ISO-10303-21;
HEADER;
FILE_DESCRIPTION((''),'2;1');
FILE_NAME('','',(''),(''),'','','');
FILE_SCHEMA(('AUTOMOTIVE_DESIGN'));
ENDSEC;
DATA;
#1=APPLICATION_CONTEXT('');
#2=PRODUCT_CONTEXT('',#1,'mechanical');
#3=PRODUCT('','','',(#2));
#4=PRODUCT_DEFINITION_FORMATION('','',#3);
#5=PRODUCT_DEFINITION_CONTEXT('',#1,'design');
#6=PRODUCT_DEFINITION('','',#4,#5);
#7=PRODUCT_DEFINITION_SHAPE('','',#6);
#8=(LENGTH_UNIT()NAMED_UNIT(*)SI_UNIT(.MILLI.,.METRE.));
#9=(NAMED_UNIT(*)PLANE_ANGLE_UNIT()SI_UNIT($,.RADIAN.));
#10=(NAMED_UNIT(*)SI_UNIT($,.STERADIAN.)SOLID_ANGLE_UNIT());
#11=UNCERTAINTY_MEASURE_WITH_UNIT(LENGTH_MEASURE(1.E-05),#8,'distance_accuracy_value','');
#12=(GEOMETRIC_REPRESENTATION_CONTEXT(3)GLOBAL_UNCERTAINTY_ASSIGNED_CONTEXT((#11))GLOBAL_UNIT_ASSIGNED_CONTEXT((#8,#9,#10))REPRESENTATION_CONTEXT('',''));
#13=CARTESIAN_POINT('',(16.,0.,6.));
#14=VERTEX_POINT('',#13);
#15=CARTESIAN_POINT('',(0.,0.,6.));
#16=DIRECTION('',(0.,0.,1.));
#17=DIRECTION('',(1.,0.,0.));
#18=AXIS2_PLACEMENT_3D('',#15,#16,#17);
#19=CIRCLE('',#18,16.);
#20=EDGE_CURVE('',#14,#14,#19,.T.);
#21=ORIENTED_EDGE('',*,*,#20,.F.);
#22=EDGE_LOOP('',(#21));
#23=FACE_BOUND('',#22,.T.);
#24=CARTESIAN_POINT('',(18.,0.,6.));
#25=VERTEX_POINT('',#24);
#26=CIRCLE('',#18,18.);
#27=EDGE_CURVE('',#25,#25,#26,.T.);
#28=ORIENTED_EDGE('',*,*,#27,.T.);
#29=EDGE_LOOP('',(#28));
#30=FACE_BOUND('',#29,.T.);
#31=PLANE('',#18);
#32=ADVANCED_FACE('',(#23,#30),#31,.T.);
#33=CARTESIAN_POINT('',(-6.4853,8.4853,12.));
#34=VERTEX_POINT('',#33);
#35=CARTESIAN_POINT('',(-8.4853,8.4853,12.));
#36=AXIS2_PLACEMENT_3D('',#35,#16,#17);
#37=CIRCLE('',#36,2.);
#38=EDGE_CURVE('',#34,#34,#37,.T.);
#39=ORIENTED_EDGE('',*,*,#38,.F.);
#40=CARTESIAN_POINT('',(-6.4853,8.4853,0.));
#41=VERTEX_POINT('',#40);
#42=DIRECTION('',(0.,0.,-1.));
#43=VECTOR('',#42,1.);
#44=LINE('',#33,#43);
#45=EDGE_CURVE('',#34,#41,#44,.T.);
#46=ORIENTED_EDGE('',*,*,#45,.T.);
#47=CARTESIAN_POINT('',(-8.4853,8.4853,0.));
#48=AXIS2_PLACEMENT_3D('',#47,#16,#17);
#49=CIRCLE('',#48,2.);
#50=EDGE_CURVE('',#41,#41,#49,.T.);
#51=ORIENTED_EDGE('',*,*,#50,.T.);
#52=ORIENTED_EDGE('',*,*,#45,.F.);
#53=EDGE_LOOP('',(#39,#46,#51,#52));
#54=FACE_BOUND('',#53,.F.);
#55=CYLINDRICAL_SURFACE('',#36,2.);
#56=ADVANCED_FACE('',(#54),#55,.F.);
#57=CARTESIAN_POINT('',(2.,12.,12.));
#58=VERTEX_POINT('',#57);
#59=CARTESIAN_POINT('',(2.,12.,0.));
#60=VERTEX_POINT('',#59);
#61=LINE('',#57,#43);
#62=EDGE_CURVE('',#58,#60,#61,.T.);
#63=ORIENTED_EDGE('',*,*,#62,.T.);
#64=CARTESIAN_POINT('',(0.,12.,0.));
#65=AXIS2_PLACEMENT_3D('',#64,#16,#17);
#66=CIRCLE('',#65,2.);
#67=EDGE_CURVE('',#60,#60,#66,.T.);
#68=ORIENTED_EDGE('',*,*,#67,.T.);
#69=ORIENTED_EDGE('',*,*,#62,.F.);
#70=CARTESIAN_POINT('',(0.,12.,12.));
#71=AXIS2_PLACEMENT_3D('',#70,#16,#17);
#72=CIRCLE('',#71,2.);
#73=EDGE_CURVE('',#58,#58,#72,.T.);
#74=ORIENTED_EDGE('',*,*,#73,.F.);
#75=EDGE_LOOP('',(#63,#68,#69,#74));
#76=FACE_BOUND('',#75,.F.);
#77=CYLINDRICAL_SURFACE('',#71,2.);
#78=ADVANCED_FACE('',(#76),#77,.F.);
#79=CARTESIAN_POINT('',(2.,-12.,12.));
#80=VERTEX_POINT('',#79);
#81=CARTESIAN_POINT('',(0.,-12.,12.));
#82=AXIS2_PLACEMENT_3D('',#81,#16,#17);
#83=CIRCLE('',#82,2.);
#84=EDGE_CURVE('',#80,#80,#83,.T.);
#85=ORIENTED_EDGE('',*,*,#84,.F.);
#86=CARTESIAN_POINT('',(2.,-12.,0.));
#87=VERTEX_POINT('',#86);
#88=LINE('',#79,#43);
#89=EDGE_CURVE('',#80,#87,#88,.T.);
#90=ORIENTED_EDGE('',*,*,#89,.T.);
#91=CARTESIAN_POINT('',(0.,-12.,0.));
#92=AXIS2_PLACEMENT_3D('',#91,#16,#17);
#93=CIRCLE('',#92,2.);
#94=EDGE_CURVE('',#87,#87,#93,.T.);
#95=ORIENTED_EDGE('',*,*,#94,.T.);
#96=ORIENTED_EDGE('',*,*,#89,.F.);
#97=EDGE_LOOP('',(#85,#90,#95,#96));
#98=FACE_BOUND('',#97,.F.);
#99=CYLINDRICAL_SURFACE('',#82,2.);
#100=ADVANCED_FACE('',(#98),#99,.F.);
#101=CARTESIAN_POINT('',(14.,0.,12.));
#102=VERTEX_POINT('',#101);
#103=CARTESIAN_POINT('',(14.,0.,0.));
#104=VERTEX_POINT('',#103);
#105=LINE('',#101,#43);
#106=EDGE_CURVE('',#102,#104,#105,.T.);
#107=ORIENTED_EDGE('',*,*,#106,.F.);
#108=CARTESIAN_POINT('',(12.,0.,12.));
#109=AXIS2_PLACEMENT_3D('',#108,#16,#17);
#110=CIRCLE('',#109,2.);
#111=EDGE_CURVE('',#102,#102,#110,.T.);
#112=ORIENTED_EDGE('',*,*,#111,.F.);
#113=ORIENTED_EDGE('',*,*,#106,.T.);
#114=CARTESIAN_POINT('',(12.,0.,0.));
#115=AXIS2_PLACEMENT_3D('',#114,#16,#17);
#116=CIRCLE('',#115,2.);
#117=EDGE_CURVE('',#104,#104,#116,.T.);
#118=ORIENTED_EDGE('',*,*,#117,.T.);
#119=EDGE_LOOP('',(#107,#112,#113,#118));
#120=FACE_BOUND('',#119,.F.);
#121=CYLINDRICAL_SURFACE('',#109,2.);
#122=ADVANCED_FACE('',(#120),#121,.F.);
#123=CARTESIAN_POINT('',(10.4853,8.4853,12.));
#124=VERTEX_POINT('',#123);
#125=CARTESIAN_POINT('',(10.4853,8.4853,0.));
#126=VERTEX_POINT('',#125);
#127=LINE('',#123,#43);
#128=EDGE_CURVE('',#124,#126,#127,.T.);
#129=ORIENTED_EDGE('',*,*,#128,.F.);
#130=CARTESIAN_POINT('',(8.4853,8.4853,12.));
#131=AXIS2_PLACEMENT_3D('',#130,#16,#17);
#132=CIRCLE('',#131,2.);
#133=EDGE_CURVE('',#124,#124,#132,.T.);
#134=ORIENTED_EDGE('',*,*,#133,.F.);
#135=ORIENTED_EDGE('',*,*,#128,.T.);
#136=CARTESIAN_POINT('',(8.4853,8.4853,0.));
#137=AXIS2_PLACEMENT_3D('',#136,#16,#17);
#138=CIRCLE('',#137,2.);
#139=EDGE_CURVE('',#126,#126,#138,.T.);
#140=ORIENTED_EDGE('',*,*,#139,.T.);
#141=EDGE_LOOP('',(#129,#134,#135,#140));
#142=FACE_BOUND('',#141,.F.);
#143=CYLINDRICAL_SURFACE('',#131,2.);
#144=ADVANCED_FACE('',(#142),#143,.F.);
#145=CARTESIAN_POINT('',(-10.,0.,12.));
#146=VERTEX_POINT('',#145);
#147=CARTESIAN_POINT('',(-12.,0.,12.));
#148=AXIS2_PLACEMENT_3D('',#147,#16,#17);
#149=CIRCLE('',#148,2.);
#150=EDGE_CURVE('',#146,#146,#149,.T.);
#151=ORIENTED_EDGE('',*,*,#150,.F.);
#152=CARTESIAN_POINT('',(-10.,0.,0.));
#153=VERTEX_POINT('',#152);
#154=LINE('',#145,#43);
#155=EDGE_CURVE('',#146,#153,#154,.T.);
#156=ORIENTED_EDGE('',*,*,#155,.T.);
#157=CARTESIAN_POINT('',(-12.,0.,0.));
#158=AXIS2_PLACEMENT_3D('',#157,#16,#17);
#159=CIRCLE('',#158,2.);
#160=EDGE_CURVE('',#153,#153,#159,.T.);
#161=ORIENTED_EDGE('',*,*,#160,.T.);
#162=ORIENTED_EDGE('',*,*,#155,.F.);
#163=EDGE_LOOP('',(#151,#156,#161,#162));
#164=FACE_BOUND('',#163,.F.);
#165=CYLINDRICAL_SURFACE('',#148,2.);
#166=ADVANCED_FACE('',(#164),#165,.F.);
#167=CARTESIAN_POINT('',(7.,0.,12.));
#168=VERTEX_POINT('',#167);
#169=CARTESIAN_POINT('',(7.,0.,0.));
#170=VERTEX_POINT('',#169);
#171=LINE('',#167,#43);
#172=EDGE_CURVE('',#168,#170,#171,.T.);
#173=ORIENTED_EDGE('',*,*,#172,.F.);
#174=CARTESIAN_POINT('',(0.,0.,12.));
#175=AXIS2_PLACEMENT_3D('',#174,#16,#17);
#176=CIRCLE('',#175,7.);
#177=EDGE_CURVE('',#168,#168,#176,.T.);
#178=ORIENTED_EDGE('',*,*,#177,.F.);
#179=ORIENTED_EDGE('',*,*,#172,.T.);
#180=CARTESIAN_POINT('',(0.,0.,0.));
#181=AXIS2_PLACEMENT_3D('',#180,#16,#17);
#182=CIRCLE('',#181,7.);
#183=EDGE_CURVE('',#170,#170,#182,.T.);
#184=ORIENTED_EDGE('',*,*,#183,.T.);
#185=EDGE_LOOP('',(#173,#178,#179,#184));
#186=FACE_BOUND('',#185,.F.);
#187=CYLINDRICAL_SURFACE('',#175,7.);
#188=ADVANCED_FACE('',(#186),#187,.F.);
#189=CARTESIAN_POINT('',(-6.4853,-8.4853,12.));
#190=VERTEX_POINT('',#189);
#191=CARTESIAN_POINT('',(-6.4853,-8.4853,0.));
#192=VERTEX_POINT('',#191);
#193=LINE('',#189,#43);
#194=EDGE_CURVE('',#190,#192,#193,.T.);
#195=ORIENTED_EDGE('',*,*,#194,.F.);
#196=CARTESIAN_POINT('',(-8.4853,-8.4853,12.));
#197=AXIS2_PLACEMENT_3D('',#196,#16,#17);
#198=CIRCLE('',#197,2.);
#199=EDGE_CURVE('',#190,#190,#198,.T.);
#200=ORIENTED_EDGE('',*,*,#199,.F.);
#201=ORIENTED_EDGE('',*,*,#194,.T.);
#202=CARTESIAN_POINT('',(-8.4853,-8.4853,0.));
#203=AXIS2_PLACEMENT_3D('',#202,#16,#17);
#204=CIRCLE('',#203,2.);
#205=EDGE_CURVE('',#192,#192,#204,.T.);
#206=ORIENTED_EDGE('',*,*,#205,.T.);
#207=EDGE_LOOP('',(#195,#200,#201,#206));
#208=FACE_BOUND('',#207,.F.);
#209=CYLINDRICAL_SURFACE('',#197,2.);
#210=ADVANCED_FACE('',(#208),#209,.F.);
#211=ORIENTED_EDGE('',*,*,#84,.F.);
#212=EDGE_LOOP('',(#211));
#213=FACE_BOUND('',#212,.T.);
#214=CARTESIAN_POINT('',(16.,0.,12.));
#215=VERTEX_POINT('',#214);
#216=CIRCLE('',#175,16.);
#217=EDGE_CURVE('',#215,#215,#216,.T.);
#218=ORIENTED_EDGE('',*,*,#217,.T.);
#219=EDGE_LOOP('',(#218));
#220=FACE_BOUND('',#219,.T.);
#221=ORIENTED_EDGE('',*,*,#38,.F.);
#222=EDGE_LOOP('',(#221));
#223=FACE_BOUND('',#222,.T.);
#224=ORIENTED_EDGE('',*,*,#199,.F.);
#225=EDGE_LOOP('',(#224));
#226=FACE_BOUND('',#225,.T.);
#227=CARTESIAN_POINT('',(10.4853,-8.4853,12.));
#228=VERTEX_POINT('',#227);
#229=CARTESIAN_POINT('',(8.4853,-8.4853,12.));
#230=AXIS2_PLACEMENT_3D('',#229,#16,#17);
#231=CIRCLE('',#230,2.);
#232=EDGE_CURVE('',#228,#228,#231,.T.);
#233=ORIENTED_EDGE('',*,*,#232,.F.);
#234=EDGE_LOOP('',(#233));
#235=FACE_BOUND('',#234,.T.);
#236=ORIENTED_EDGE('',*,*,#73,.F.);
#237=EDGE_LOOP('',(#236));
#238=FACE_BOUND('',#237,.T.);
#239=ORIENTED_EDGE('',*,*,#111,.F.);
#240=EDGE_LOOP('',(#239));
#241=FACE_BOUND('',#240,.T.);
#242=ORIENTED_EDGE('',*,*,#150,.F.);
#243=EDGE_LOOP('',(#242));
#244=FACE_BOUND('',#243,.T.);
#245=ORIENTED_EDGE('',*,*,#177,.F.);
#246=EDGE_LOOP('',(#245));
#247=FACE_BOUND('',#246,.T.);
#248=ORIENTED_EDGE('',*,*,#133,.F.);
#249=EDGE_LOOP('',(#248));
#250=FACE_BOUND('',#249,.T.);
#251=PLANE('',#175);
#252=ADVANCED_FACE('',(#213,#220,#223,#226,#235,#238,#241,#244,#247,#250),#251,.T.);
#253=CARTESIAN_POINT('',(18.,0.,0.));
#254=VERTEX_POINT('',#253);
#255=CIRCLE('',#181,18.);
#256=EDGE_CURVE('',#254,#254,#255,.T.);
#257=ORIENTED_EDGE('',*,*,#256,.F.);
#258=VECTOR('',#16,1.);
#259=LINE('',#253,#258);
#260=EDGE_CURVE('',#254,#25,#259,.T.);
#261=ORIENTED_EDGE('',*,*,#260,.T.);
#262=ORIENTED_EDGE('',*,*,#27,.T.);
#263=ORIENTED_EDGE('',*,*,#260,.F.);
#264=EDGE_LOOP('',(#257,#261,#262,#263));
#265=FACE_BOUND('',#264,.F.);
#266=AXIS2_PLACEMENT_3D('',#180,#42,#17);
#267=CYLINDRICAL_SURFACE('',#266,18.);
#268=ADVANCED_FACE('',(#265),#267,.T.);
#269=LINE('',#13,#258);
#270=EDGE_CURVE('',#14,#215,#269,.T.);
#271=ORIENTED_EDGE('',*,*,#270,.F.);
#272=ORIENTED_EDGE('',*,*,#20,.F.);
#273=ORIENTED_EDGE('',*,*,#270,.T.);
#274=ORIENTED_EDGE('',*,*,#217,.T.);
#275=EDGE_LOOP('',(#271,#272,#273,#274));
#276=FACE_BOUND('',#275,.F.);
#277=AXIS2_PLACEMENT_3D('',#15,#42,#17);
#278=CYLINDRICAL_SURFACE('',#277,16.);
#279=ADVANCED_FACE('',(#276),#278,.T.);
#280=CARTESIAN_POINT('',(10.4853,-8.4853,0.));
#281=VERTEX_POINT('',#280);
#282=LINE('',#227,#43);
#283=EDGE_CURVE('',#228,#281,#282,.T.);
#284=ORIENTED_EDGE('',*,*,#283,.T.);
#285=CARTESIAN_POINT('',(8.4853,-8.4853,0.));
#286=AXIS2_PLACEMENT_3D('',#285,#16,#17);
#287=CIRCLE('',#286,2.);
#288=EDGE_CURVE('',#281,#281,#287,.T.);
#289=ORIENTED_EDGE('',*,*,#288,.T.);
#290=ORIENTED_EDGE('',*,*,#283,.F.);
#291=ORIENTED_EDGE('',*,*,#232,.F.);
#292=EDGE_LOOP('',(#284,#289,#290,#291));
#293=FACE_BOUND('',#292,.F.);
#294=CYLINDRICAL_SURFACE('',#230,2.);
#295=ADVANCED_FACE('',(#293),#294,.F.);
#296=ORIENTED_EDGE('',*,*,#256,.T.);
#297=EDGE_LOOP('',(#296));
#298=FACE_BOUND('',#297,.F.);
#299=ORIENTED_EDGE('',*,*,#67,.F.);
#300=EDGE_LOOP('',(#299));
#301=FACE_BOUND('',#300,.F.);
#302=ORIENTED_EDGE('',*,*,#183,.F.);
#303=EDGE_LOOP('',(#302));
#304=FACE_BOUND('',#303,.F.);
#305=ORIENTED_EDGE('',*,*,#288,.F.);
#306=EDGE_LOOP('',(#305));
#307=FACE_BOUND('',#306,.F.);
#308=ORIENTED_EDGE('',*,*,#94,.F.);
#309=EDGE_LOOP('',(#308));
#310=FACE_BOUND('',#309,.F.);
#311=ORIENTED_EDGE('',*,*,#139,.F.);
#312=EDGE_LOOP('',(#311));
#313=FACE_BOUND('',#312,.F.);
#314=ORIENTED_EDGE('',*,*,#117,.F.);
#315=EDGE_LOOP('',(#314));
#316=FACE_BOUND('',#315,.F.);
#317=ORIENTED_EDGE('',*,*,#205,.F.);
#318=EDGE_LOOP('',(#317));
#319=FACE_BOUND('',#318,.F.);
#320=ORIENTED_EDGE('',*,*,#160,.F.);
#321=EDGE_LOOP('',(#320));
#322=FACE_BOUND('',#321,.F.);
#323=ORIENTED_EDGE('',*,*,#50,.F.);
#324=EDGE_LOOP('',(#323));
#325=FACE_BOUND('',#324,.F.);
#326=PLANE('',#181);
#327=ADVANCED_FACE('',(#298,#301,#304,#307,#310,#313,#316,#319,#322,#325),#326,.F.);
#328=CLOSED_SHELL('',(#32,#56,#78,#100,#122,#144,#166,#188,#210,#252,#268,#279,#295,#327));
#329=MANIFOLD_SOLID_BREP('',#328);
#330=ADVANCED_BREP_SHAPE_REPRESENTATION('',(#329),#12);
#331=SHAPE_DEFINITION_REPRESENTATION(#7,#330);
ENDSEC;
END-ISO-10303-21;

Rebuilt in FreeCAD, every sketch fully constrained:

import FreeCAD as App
import Part
import Sketcher

doc = App.newDocument("Part")
body = doc.addObject("PartDesign::Body", "Body")

# Sketch on XY plane
sketch1 = doc.addObject("Sketcher::SketchObject", "Sketch")
body.addObject(sketch1)
sketch1.AttachmentSupport = (doc.XY_Plane, [""])
sketch1.MapMode = "FlatFace"
sketch1.addGeometry(Part.Circle(App.Vector(0, 0, 0), App.Vector(0, 0, 1), 18), False)
sketch1.addConstraint([
    Sketcher.Constraint("Coincident", 0, 3, -1, 1),
    Sketcher.Constraint("Diameter", 0, 36.0),
])
pad1 = doc.addObject("PartDesign::Pad", "Pad")
body.addObject(pad1)
pad1.Profile = sketch1
pad1.Length = 6

# Sketch on XY plane
sketch2 = doc.addObject("Sketcher::SketchObject", "Sketch001")
body.addObject(sketch2)
sketch2.AttachmentSupport = (doc.XY_Plane, [""])
sketch2.MapMode = "FlatFace"
sketch2.AttachmentOffset = App.Placement(App.Vector(0, 0, 6), App.Rotation())
sketch2.addGeometry(Part.Circle(App.Vector(0, 0, 0), App.Vector(0, 0, 1), 16), False)
sketch2.addConstraint([
    Sketcher.Constraint("Coincident", 0, 3, -1, 1),
    Sketcher.Constraint("Diameter", 0, 32.0),
])
pad2 = doc.addObject("PartDesign::Pad", "Pad001")
body.addObject(pad2)
pad2.Profile = sketch2
pad2.Length = 6

# Sketch on XY plane
sketch3 = doc.addObject("Sketcher::SketchObject", "Sketch002")
body.addObject(sketch3)
sketch3.AttachmentSupport = (doc.XY_Plane, [""])
sketch3.MapMode = "FlatFace"
sketch3.AttachmentOffset = App.Placement(App.Vector(0, 0, 12), App.Rotation())
sketch3.addGeometry([
    Part.Circle(App.Vector(0, 0, 0), App.Vector(0, 0, 1), 7),  # 0
    Part.Circle(App.Vector(-8.5, 8.5, 0), App.Vector(0, 0, 1), 2),  # 1
    Part.Circle(App.Vector(-12, 0, 0), App.Vector(0, 0, 1), 2),  # 2
    Part.Circle(App.Vector(-8.5, -8.5, 0), App.Vector(0, 0, 1), 2),  # 3
    Part.Circle(App.Vector(0, -12, 0), App.Vector(0, 0, 1), 2),  # 4
    Part.Circle(App.Vector(8.5, -8.5, 0), App.Vector(0, 0, 1), 2),  # 5
    Part.Circle(App.Vector(12, 0, 0), App.Vector(0, 0, 1), 2),  # 6
    Part.Circle(App.Vector(8.5, 8.5, 0), App.Vector(0, 0, 1), 2),  # 7
    Part.Circle(App.Vector(0, 12, 0), App.Vector(0, 0, 1), 2),  # 8
], False)
sketch3.addConstraint([
    Sketcher.Constraint("Coincident", 0, 3, -1, 1),
    Sketcher.Constraint("Equal", 1, 2),
    Sketcher.Constraint("Equal", 2, 3),
    Sketcher.Constraint("Equal", 3, 4),
    Sketcher.Constraint("Equal", 4, 5),
    Sketcher.Constraint("Equal", 5, 6),
    Sketcher.Constraint("Equal", 6, 7),
    Sketcher.Constraint("Equal", 7, 8),
    Sketcher.Constraint("Symmetric", 1, 3, 5, 3, -1, 1),
    Sketcher.Constraint("Symmetric", 2, 3, 6, 3, -1, 1),
    Sketcher.Constraint("Symmetric", 3, 3, 7, 3, -1, 1),
    Sketcher.Constraint("Symmetric", 4, 3, 8, 3, -1, 1),
    Sketcher.Constraint("Symmetric", 3, 3, 5, 3, -2),
    Sketcher.Constraint("PointOnObject", 2, 3, -1),
    Sketcher.Constraint("PointOnObject", 4, 3, -2),
    Sketcher.Constraint("Diameter", 0, 14.0),
    Sketcher.Constraint("Diameter", 1, 4.0),
    Sketcher.Constraint("DistanceX", 2, 3, -1, 1, 12.0),
    Sketcher.Constraint("DistanceY", 4, 3, -1, 1, 12.0),
    Sketcher.Constraint("DistanceX", 1, 3, -1, 1, 8.4853),
    Sketcher.Constraint("DistanceY", -1, 1, 1, 3, 8.4853),
])
pocket1 = doc.addObject("PartDesign::Pocket", "Pocket")
body.addObject(pocket1)
pocket1.Profile = sketch3
pocket1.Type = "ThroughAll"

doc.recompute()
